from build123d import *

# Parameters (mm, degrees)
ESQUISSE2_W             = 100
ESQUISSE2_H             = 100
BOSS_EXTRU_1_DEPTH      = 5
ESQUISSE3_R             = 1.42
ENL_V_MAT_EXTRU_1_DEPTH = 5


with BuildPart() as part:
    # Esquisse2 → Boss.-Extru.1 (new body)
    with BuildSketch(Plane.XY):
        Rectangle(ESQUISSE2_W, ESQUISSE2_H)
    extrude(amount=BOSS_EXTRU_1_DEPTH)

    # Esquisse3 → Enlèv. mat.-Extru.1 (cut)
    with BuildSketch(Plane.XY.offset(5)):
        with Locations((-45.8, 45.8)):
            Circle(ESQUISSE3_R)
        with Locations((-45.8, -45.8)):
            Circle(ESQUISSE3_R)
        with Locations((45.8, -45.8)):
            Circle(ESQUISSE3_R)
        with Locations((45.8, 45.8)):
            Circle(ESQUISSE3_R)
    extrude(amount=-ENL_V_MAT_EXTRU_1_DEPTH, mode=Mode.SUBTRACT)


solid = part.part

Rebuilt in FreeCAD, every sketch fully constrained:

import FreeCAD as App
import Part
import Sketcher

doc = App.newDocument("Part")
body = doc.addObject("PartDesign::Body", "Body")

# Sketch on XY plane
sketch1 = body.newObject("Sketcher::SketchObject", "Sketch")
sketch1.AttachmentSupport = (doc.getObject("XY_Plane"), [""])
sketch1.MapMode = "FlatFace"
sketch1.addGeometry([
    Part.LineSegment(App.Vector(-50, 50, 0), App.Vector(-50, -50, 0)),
    Part.LineSegment(App.Vector(-50, -50, 0), App.Vector(50, -50, 0)),
    Part.LineSegment(App.Vector(50, -50, 0), App.Vector(50, 50, 0)),
    Part.LineSegment(App.Vector(50, 50, 0), App.Vector(-50, 50, 0)),
], False)
sketch1.addConstraint([
    Sketcher.Constraint("Coincident", 0, 2, 1, 1),
    Sketcher.Constraint("Coincident", 1, 2, 2, 1),
    Sketcher.Constraint("Coincident", 2, 2, 3, 1),
    Sketcher.Constraint("Coincident", 3, 2, 0, 1),
    Sketcher.Constraint("Vertical", 0),
    Sketcher.Constraint("Horizontal", 1),
    Sketcher.Constraint("Vertical", 2),
    Sketcher.Constraint("Horizontal", 3),
    Sketcher.Constraint("Symmetric", 0, 2, 2, 2, -1, 1),
    Sketcher.Constraint("Equal", 3, 0),
    Sketcher.Constraint("DistanceX", 1, 1, 1, 2, 100.0),
])
pad1 = body.newObject("PartDesign::Pad", "Pad")
pad1.Profile = sketch1
pad1.Length = 5

# Sketch on XY plane
sketch2 = body.newObject("Sketcher::SketchObject", "Sketch001")
sketch2.AttachmentSupport = (doc.getObject("XY_Plane"), [""])
sketch2.MapMode = "FlatFace"
sketch2.AttachmentOffset = App.Placement(App.Vector(0, 0, 5), App.Rotation())
sketch2.addGeometry([
    Part.Circle(App.Vector(-45.8, 45.8, 0), App.Vector(0, 0, 1), 1.4),
    Part.Circle(App.Vector(-45.8, -45.8, 0), App.Vector(0, 0, 1), 1.4),
    Part.Circle(App.Vector(45.8, -45.8, 0), App.Vector(0, 0, 1), 1.4),
    Part.Circle(App.Vector(45.8, 45.8, 0), App.Vector(0, 0, 1), 1.4),
], False)
sketch2.addConstraint([
    Sketcher.Constraint("Equal", 0, 1),
    Sketcher.Constraint("Equal", 1, 2),
    Sketcher.Constraint("Equal", 2, 3),
    Sketcher.Constraint("Symmetric", 0, 3, 2, 3, -1, 1),
    Sketcher.Constraint("Symmetric", 1, 3, 3, 3, -1, 1),
    Sketcher.Constraint("Symmetric", 1, 3, 2, 3, -2),
    Sketcher.Constraint("Diameter", 0, 2.84),
    Sketcher.Constraint("DistanceX", 0, 3, -1, 1, 45.8),
    Sketcher.Constraint("DistanceY", -1, 1, 0, 3, 45.8),
])
pocket1 = body.newObject("PartDesign::Pocket", "Pocket")
pocket1.Profile = sketch2
pocket1.Length = 5

doc.recompute()
